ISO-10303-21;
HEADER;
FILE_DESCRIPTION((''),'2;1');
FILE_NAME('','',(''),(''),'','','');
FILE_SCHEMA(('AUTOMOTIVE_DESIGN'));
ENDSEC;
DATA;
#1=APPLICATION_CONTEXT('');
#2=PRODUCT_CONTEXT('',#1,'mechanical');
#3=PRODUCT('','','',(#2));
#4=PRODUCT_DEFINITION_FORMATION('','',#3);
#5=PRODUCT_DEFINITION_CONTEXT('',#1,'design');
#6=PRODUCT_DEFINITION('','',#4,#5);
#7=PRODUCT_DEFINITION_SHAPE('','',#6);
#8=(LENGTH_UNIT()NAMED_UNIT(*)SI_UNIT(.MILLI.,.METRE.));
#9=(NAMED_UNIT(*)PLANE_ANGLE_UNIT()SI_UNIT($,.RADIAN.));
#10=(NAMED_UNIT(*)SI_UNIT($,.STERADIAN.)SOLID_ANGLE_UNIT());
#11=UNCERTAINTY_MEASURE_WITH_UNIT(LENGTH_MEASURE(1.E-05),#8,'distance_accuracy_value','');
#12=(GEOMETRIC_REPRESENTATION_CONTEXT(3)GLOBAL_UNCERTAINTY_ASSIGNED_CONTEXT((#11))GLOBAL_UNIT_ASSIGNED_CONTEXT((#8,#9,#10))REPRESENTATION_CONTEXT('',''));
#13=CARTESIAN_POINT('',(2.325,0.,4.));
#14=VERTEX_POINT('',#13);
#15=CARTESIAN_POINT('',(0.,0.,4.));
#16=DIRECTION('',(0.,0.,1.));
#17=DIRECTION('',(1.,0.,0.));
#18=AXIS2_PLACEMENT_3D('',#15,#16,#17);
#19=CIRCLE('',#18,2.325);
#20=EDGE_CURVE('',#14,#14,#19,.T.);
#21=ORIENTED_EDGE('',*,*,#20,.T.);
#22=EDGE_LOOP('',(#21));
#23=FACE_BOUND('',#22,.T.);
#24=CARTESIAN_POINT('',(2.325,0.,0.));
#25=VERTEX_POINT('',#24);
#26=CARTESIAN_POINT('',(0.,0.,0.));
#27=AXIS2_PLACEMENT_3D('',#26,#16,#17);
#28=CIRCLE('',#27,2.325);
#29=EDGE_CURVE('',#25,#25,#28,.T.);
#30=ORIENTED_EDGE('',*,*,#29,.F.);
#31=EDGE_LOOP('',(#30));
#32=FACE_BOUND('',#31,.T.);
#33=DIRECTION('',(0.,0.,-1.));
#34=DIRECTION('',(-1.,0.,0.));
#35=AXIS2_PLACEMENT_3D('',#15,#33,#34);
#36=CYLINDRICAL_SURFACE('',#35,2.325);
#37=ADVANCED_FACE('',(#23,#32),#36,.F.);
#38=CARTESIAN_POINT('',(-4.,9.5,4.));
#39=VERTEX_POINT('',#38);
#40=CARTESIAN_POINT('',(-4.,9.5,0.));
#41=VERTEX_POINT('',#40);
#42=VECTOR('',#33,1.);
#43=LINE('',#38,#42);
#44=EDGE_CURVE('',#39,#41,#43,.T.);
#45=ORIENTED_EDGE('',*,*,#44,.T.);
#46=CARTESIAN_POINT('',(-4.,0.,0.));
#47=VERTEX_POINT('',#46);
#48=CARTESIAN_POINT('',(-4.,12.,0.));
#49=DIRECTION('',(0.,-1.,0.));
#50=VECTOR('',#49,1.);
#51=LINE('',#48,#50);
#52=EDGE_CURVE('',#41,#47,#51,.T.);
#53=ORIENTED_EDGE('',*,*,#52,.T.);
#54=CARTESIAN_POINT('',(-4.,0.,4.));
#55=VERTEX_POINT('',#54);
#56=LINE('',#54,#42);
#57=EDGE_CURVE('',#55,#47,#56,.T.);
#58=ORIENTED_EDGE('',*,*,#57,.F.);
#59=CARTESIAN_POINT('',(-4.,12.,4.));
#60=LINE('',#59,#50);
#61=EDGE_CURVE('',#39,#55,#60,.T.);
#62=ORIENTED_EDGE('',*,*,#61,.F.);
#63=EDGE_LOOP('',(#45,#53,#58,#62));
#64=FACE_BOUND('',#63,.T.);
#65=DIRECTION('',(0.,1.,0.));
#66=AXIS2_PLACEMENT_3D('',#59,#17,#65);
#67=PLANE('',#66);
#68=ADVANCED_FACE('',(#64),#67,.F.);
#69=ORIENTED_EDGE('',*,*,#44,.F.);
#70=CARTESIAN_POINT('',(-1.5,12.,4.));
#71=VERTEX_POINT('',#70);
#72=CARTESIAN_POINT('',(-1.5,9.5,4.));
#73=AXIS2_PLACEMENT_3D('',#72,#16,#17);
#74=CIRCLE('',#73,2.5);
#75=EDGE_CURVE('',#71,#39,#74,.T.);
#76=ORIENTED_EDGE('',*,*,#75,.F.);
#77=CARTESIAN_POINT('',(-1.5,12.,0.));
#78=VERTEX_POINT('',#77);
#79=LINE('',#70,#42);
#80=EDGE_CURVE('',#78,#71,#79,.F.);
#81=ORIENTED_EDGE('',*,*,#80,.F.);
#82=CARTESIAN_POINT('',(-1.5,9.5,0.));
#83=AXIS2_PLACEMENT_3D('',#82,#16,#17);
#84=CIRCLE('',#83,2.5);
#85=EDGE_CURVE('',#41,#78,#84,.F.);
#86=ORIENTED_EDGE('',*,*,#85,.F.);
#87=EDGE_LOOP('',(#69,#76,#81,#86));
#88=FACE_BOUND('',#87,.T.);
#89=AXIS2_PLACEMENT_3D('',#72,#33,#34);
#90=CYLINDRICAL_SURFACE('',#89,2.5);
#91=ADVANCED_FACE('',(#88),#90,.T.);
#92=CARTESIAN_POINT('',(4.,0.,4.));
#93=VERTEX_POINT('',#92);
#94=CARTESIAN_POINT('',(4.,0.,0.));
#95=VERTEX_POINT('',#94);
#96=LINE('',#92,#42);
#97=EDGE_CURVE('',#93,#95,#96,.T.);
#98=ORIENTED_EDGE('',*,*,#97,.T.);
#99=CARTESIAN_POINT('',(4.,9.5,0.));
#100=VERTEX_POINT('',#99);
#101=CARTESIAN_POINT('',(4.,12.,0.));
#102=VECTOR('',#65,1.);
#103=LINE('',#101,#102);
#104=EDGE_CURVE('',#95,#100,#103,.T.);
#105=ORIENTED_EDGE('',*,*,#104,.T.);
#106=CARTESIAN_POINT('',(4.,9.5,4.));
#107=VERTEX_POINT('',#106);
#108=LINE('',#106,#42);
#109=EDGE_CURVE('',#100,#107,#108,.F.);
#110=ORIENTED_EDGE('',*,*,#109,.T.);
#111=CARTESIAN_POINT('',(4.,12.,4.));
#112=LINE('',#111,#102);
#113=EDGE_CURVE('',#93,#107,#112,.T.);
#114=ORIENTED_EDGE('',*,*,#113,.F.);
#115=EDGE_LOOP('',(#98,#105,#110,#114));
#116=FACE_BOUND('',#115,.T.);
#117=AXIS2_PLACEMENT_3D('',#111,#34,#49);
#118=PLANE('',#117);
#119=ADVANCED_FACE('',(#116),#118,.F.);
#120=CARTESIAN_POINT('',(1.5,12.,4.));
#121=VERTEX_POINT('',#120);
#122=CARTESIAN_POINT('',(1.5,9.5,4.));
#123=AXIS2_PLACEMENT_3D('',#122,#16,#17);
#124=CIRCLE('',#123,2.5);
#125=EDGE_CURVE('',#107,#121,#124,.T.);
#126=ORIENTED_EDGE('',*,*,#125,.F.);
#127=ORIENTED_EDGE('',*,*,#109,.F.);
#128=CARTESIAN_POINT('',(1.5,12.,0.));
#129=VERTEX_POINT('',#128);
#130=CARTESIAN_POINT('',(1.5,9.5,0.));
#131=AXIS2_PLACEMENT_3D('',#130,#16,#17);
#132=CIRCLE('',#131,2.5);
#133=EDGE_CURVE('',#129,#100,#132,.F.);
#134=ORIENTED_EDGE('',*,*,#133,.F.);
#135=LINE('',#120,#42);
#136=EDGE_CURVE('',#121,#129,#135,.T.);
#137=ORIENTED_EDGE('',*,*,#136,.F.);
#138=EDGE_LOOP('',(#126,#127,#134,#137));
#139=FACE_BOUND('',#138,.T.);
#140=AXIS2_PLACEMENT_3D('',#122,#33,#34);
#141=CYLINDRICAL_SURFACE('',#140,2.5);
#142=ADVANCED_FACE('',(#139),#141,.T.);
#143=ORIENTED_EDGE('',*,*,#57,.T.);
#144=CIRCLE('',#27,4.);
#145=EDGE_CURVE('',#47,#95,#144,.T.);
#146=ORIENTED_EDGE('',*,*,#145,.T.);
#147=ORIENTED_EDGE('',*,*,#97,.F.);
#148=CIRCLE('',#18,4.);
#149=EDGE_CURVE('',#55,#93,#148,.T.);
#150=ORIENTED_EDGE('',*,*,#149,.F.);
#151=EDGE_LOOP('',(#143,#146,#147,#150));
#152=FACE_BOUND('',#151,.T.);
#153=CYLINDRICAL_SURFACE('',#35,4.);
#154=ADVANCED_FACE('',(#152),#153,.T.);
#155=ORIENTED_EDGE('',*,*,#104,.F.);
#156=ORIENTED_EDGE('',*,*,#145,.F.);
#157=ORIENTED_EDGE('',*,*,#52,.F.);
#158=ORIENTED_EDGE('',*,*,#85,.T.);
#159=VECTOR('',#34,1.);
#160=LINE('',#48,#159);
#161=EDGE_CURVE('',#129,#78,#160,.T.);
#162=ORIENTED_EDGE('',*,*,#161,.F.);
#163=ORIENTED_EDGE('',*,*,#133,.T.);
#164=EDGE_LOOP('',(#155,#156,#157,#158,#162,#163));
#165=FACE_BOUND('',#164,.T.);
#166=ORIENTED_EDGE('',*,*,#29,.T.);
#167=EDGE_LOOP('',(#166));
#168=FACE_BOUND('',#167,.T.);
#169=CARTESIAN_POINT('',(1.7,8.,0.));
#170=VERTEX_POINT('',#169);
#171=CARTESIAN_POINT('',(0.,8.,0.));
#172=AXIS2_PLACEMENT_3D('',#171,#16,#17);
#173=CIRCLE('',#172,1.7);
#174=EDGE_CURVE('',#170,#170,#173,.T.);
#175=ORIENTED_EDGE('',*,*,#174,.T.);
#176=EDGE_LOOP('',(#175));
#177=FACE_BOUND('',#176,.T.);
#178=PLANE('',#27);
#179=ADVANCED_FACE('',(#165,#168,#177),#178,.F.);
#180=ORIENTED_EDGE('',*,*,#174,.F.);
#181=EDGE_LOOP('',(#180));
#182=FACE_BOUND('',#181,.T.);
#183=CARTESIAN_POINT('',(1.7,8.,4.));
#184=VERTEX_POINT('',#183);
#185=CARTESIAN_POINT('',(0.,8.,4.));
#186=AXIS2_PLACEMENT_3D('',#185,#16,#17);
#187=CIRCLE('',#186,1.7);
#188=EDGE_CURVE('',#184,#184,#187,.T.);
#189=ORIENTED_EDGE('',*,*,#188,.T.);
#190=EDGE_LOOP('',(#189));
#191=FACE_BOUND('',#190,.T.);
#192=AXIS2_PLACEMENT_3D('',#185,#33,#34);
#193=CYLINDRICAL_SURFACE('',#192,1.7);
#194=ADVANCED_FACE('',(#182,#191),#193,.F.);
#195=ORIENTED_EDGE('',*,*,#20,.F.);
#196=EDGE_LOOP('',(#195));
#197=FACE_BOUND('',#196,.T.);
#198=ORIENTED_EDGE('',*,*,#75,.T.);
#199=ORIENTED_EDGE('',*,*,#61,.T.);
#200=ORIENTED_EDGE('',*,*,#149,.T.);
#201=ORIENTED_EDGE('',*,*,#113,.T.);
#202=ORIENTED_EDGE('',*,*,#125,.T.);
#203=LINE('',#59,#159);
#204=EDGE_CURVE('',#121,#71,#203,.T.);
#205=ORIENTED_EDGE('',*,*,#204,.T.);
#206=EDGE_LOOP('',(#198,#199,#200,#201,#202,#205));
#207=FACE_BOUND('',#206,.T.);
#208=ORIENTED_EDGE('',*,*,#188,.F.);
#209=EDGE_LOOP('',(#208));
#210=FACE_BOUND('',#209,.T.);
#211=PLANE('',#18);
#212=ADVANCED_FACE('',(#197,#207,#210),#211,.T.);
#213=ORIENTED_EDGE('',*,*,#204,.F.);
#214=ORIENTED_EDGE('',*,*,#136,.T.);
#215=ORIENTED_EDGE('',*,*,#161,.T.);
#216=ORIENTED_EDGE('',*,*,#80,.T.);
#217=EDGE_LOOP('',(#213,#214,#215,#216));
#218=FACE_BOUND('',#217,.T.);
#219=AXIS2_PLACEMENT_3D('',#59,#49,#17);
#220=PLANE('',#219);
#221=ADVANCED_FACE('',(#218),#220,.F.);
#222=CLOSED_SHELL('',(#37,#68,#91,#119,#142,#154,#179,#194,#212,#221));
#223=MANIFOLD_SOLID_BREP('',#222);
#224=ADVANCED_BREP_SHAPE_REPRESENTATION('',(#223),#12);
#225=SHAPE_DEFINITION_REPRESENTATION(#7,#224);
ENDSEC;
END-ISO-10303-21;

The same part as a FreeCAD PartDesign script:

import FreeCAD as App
import Part
import Sketcher
Q = App.Units.Quantity


def edges_at(feature, points):
    """Names of the edges that pass closest to the given points."""
    edges = feature.Shape.Edges
    near = lambda p: min(range(len(edges)), key=lambda i: edges[i].distToShape(Part.Vertex(*p))[0])
    return sorted({f"Edge{near(p) + 1}" for p in points})


def add_polygon(sketch, points):
    """Adds a closed chain of lines whose ends are joined by coincident constraints."""
    first, n = sketch.GeometryCount, len(points)
    for a, b in zip(points, points[1:] + points[:1]):
        sketch.addGeometry(Part.LineSegment(App.Vector(*a, 0), App.Vector(*b, 0)), False)
    for i in range(n):
        sketch.addConstraint(Sketcher.Constraint("Coincident", first + i, 2, first + (i + 1) % n, 1))

doc = App.newDocument("Part")
body = doc.addObject("PartDesign::Body", "Body")

sketch1 = body.newObject("Sketcher::SketchObject", "Sketch")
sketch1.AttachmentSupport = (doc.getObject("XY_Plane"), [""])
sketch1.MapMode = "FlatFace"
sketch1.addGeometry(Part.Circle(App.Vector(0, 0, 0), App.Vector(0, 0, 1), 4), False)
sketch1.addConstraint([
    Sketcher.Constraint("Coincident", 0, 3, -1, 1),
    Sketcher.Constraint("Diameter", 0, Q("8 mm")),
])
pad1 = body.newObject("PartDesign::Pad", "Pad")
pad1.Profile = sketch1
pad1.Length = 4

sketch2 = body.newObject("Sketcher::SketchObject", "Sketch001")
sketch2.AttachmentSupport = (doc.getObject("XY_Plane"), [""])
sketch2.MapMode = "FlatFace"
add_polygon(sketch2, [(-4, 12), (-4, 0), (4, 0), (4, 12)])
sketch2.addConstraint([
    Sketcher.Constraint("Vertical", 0),
    Sketcher.Constraint("Horizontal", 1),
    Sketcher.Constraint("Vertical", 2),
    Sketcher.Constraint("Horizontal", 3),
    Sketcher.Constraint("Symmetric", 0, 2, 1, 2, -1, 1),
    Sketcher.Constraint("DistanceX", 1, 1, 1, 2, Q("8 mm")),
    Sketcher.Constraint("DistanceY", 0, 2, 0, 1, Q("12 mm")),
])
pad2 = body.newObject("PartDesign::Pad", "Pad001")
pad2.Profile = sketch2
pad2.Length = 4

sketch3 = body.newObject("Sketcher::SketchObject", "Sketch002")
sketch3.AttachmentSupport = (doc.getObject("XY_Plane"), [""])
sketch3.MapMode = "FlatFace"
sketch3.addGeometry(Part.Circle(App.Vector(0, 0, 0), App.Vector(0, 0, 1), 2.3), False)
sketch3.addConstraint([
    Sketcher.Constraint("Coincident", 0, 3, -1, 1),
    Sketcher.Constraint("Diameter", 0, Q("4.65 mm")),
])
pocket1 = body.newObject("PartDesign::Pocket", "Pocket")
pocket1.Profile = sketch3
pocket1.Type = "ThroughAll"
pocket1.Reversed = True

sketch4 = body.newObject("Sketcher::SketchObject", "Sketch003")
sketch4.AttachmentSupport = (doc.getObject("XY_Plane"), [""])
sketch4.MapMode = "FlatFace"
sketch4.addGeometry(Part.Circle(App.Vector(0, 8, 0), App.Vector(0, 0, 1), 1.7), False)
sketch4.addConstraint([
    Sketcher.Constraint("PointOnObject", 0, 3, -2),
    Sketcher.Constraint("Diameter", 0, Q("3.4 mm")),
    Sketcher.Constraint("DistanceY", -1, 1, 0, 3, Q("8 mm")),
])
pocket2 = body.newObject("PartDesign::Pocket", "Pocket001")
pocket2.Profile = sketch4
pocket2.Length = 4
pocket2.Reversed = True
doc.recompute()

fillet = body.newObject("PartDesign::Fillet", "Fillet")
fillet.Base = (pocket2, edges_at(pocket2, [(4, 12, 2), (-4, 12, 2)]))
fillet.Radius = 2.5

doc.recompute()
